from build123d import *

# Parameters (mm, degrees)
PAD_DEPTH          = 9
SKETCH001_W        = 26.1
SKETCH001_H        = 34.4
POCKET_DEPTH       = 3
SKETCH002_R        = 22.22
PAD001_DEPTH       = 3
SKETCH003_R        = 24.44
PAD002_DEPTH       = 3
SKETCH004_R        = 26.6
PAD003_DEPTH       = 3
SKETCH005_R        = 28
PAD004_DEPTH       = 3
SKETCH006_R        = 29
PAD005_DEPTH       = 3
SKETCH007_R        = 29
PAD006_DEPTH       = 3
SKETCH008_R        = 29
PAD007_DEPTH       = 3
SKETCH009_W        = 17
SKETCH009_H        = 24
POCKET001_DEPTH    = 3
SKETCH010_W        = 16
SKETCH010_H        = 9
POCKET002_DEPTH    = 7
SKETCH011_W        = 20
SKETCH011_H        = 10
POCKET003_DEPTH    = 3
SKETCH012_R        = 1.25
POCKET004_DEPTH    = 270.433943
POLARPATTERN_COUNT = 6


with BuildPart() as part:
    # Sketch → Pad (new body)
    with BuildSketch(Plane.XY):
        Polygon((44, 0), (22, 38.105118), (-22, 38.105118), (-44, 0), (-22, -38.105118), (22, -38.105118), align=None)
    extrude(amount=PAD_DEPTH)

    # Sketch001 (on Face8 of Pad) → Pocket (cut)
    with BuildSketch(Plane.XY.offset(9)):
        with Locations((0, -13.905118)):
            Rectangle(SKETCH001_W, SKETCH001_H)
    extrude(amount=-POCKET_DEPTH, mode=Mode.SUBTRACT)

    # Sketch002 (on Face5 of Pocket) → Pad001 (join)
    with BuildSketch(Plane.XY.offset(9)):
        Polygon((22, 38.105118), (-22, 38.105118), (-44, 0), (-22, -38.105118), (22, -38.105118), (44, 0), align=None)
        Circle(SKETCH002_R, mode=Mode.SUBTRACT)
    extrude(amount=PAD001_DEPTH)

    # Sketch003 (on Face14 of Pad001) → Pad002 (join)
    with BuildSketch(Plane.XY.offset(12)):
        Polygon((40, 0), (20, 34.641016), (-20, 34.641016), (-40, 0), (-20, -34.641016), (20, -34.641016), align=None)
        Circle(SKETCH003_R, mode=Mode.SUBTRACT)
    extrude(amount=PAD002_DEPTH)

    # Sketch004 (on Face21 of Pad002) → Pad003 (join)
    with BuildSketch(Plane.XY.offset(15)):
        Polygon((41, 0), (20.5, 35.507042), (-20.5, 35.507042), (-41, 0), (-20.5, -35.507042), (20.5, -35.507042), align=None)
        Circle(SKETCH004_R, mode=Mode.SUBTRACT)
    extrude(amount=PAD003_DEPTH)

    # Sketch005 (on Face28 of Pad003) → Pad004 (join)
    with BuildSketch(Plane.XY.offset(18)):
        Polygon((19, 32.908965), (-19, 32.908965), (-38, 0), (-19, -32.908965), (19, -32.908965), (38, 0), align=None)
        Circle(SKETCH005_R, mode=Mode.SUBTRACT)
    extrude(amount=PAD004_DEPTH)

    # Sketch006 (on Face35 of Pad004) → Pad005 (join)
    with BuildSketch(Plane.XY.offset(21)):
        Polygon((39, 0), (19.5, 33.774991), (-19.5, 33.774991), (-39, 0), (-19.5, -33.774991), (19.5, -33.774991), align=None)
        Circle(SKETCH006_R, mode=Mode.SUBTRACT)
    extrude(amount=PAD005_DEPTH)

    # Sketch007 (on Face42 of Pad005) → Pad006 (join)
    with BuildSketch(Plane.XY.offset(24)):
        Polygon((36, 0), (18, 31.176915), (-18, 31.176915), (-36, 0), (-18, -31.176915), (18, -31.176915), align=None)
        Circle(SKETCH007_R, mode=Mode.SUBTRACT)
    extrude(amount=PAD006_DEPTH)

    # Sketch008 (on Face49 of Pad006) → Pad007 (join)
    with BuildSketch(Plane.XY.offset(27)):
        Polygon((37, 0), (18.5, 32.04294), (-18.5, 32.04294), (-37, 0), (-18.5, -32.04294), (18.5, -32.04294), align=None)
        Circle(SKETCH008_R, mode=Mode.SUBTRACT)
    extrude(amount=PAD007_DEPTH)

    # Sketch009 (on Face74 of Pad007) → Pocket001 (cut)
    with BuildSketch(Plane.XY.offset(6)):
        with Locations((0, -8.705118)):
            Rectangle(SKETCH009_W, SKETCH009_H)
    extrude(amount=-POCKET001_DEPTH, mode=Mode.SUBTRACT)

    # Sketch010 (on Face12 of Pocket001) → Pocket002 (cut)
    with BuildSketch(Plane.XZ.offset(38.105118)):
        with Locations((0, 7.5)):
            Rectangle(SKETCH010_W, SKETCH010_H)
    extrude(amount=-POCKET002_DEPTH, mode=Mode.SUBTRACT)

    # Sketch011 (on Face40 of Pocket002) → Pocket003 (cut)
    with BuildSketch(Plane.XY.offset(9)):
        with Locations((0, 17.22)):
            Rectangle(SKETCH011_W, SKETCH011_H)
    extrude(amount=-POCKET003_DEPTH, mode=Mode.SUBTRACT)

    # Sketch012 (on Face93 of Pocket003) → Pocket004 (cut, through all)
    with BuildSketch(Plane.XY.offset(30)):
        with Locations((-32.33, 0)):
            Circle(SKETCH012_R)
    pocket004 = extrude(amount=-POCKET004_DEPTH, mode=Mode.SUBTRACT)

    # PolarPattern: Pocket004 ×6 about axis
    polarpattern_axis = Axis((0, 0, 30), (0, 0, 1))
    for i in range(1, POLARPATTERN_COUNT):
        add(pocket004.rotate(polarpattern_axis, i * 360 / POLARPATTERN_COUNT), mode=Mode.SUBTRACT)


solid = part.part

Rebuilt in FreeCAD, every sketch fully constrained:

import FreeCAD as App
import Part
import Sketcher

V = App.Vector
Q = App.Units.Quantity

doc = App.newDocument("Part")
body = doc.addObject("PartDesign::Body", "Body")

# Sketch on XY plane
sketch1 = doc.addObject("Sketcher::SketchObject", "Sketch")
body.addObject(sketch1)
sketch1.AttachmentSupport = (doc.XY_Plane, [""])
sketch1.MapMode = "FlatFace"
sketch1.addGeometry([
    Part.LineSegment(V(44, 0, 0), V(22, 38, 0)),  # 0
    Part.LineSegment(V(22, 38, 0), V(-22, 38, 0)),  # 1
    Part.LineSegment(V(-22, 38, 0), V(-44, 0, 0)),  # 2
    Part.LineSegment(V(-44, 0, 0), V(-22, -38, 0)),  # 3
    Part.LineSegment(V(-22, -38, 0), V(22, -38, 0)),  # 4
    Part.LineSegment(V(22, -38, 0), V(44, 0, 0)),  # 5
], False)
sketch1.addConstraint([
    Sketcher.Constraint("Coincident", 0, 2, 1, 1),
    Sketcher.Constraint("Coincident", 1, 2, 2, 1),
    Sketcher.Constraint("Coincident", 2, 2, 3, 1),
    Sketcher.Constraint("Coincident", 3, 2, 4, 1),
    Sketcher.Constraint("Coincident", 4, 2, 5, 1),
    Sketcher.Constraint("Coincident", 5, 2, 0, 1),
    Sketcher.Constraint("Horizontal", 1),
    Sketcher.Constraint("Horizontal", 4),
    Sketcher.Constraint("Symmetric", 0, 2, 3, 2, -1, 1),
    Sketcher.Constraint("Symmetric", 2, 2, 5, 2, -1, 1),
    Sketcher.Constraint("PointOnObject", 2, 2, -1),
    Sketcher.Constraint("Parallel", 2, 5),
    Sketcher.Constraint("Vertical", 1, 2, 3, 2),
    Sketcher.Constraint("DistanceX", 1, 2, 1, 1, Q("44 mm")),
    Sketcher.Constraint("Angle", 0, Q("120 deg")),
    Sketcher.Constraint("Distance", 0, Q("44 mm")),
])
pad1 = doc.addObject("PartDesign::Pad", "Pad")
body.addObject(pad1)
pad1.Profile = sketch1
pad1.Length = 9

# Sketch on XY plane
sketch2 = doc.addObject("Sketcher::SketchObject", "Sketch001")
body.addObject(sketch2)
sketch2.AttachmentSupport = (doc.XY_Plane, [""])
sketch2.MapMode = "FlatFace"
sketch2.AttachmentOffset = App.Placement(V(0, 0, 9), App.Rotation())
sketch2.addGeometry([
    Part.LineSegment(V(-13, 3, 0), V(-13, -31, 0)),
    Part.LineSegment(V(-13, -31, 0), V(13, -31, 0)),
    Part.LineSegment(V(13, -31, 0), V(13, 3, 0)),
    Part.LineSegment(V(13, 3, 0), V(-13, 3, 0)),
], False)
sketch2.addConstraint([
    Sketcher.Constraint("Coincident", 0, 2, 1, 1),
    Sketcher.Constraint("Coincident", 1, 2, 2, 1),
    Sketcher.Constraint("Coincident", 2, 2, 3, 1),
    Sketcher.Constraint("Coincident", 3, 2, 0, 1),
    Sketcher.Constraint("Vertical", 0),
    Sketcher.Constraint("Horizontal", 1),
    Sketcher.Constraint("Vertical", 2),
    Sketcher.Constraint("Horizontal", 3),
    Sketcher.Constraint("DistanceX", 1, 1, 1, 2, Q("26.1 mm")),
    Sketcher.Constraint("DistanceY", 0, 2, 0, 1, Q("34.4 mm")),
    Sketcher.Constraint("DistanceX", 0, 2, -1, 1, Q("13.05 mm")),
    Sketcher.Constraint("DistanceY", 0, 2, -1, 1, Q("31.105118 mm")),
])
pocket1 = doc.addObject("PartDesign::Pocket", "Pocket")
body.addObject(pocket1)
pocket1.Profile = sketch2
pocket1.Length = 3

# Sketch on XY plane
sketch3 = doc.addObject("Sketcher::SketchObject", "Sketch002")
body.addObject(sketch3)
sketch3.AttachmentSupport = (doc.XY_Plane, [""])
sketch3.MapMode = "FlatFace"
sketch3.AttachmentOffset = App.Placement(V(0, 0, 9), App.Rotation())
sketch3.addGeometry([
    Part.LineSegment(V(22, 38, 0), V(-22, 38, 0)),  # 0
    Part.LineSegment(V(-22, 38, 0), V(-44, 0, 0)),  # 1
    Part.LineSegment(V(-44, 0, 0), V(-22, -38, 0)),  # 2
    Part.LineSegment(V(-22, -38, 0), V(22, -38, 0)),  # 3
    Part.LineSegment(V(22, -38, 0), V(44, 0, 0)),  # 4
    Part.LineSegment(V(44, 0, 0), V(22, 38, 0)),  # 5
    Part.Circle(V(0, 0, 0), V(0, 0, 1), 22),  # 6
], False)
sketch3.addConstraint([
    Sketcher.Constraint("Coincident", 0, 2, 1, 1),
    Sketcher.Constraint("Coincident", 1, 2, 2, 1),
    Sketcher.Constraint("Coincident", 2, 2, 3, 1),
    Sketcher.Constraint("Coincident", 3, 2, 4, 1),
    Sketcher.Constraint("Coincident", 4, 2, 5, 1),
    Sketcher.Constraint("Coincident", 5, 2, 0, 1),
    Sketcher.Constraint("Horizontal", 0),
    Sketcher.Constraint("Horizontal", 3),
    Sketcher.Constraint("Coincident", 6, 3, -1, 1),
    Sketcher.Constraint("Symmetric", 0, 2, 3, 2, -1, 1),
    Sketcher.Constraint("Symmetric", 1, 2, 4, 2, -1, 1),
    Sketcher.Constraint("PointOnObject", 1, 2, -1),
    Sketcher.Constraint("Parallel", 2, 5),
    Sketcher.Constraint("Vertical", 0, 2, 2, 2),
    Sketcher.Constraint("Diameter", 6, Q("44.44 mm")),
    Sketcher.Constraint("DistanceX", 0, 2, 0, 1, Q("44 mm")),
    Sketcher.Constraint("Angle", 1, Q("-120 deg")),
    Sketcher.Constraint("Distance", 1, Q("44 mm")),
])
pad2 = doc.addObject("PartDesign::Pad", "Pad001")
body.addObject(pad2)
pad2.Profile = sketch3
pad2.Length = 3

# Sketch on XY plane
sketch4 = doc.addObject("Sketcher::SketchObject", "Sketch003")
body.addObject(sketch4)
sketch4.AttachmentSupport = (doc.XY_Plane, [""])
sketch4.MapMode = "FlatFace"
sketch4.AttachmentOffset = App.Placement(V(0, 0, 12), App.Rotation())
sketch4.addGeometry([
    Part.LineSegment(V(40, 0, 0), V(20, 35, 0)),  # 0
    Part.LineSegment(V(20, 35, 0), V(-20, 35, 0)),  # 1
    Part.LineSegment(V(-20, 35, 0), V(-40, 0, 0)),  # 2
    Part.LineSegment(V(-40, 0, 0), V(-20, -35, 0)),  # 3
    Part.LineSegment(V(-20, -35, 0), V(20, -35, 0)),  # 4
    Part.LineSegment(V(20, -35, 0), V(40, 0, 0)),  # 5
    Part.Circle(V(0, 0, 0), V(0, 0, 1), 24),  # 6
], False)
sketch4.addConstraint([
    Sketcher.Constraint("Coincident", 0, 2, 1, 1),
    Sketcher.Constraint("Coincident", 1, 2, 2, 1),
    Sketcher.Constraint("Coincident", 2, 2, 3, 1),
    Sketcher.Constraint("Coincident", 3, 2, 4, 1),
    Sketcher.Constraint("Coincident", 4, 2, 5, 1),
    Sketcher.Constraint("Coincident", 5, 2, 0, 1),
    Sketcher.Constraint("Horizontal", 1),
    Sketcher.Constraint("Horizontal", 4),
    Sketcher.Constraint("Coincident", 6, 3, -1, 1),
    Sketcher.Constraint("Symmetric", 0, 2, 3, 2, -1, 1),
    Sketcher.Constraint("Symmetric", 2, 2, 5, 2, -1, 1),
    Sketcher.Constraint("PointOnObject", 2, 2, -1),
    Sketcher.Constraint("Parallel", 2, 5),
    Sketcher.Constraint("Vertical", 1, 2, 3, 2),
    Sketcher.Constraint("Diameter", 6, Q("48.88 mm")),
    Sketcher.Constraint("DistanceX", 1, 2, 1, 1, Q("40 mm")),
    Sketcher.Constraint("Angle", 0, Q("120 deg")),
    Sketcher.Constraint("Distance", 0, Q("40 mm")),
])
pad3 = doc.addObject("PartDesign::Pad", "Pad002")
body.addObject(pad3)
pad3.Profile = sketch4
pad3.Length = 3

# Sketch on XY plane
sketch5 = doc.addObject("Sketcher::SketchObject", "Sketch004")
body.addObject(sketch5)
sketch5.AttachmentSupport = (doc.XY_Plane, [""])
sketch5.MapMode = "FlatFace"
sketch5.AttachmentOffset = App.Placement(V(0, 0, 15), App.Rotation())
sketch5.addGeometry([
    Part.LineSegment(V(41, 0, 0), V(20, 36, 0)),  # 0
    Part.LineSegment(V(20, 36, 0), V(-20, 36, 0)),  # 1
    Part.LineSegment(V(-20, 36, 0), V(-41, 0, 0)),  # 2
    Part.LineSegment(V(-41, 0, 0), V(-20, -36, 0)),  # 3
    Part.LineSegment(V(-20, -36, 0), V(20, -36, 0)),  # 4
    Part.LineSegment(V(20, -36, 0), V(41, 0, 0)),  # 5
    Part.Circle(V(0, 0, 0), V(0, 0, 1), 27),  # 6
], False)
sketch5.addConstraint([
    Sketcher.Constraint("Coincident", 0, 2, 1, 1),
    Sketcher.Constraint("Coincident", 1, 2, 2, 1),
    Sketcher.Constraint("Coincident", 2, 2, 3, 1),
    Sketcher.Constraint("Coincident", 3, 2, 4, 1),
    Sketcher.Constraint("Coincident", 4, 2, 5, 1),
    Sketcher.Constraint("Coincident", 5, 2, 0, 1),
    Sketcher.Constraint("Horizontal", 1),
    Sketcher.Constraint("Horizontal", 4),
    Sketcher.Constraint("Coincident", 6, 3, -1, 1),
    Sketcher.Constraint("Symmetric", 0, 2, 3, 2, -1, 1),
    Sketcher.Constraint("Symmetric", 2, 2, 5, 2, -1, 1),
    Sketcher.Constraint("PointOnObject", 2, 2, -1),
    Sketcher.Constraint("Parallel", 2, 5),
    Sketcher.Constraint("Vertical", 1, 2, 3, 2),
    Sketcher.Constraint("Diameter", 6, Q("53.2 mm")),
    Sketcher.Constraint("DistanceX", 1, 2, 1, 1, Q("41 mm")),
    Sketcher.Constraint("Angle", 0, Q("120 deg")),
    Sketcher.Constraint("Distance", 0, Q("41 mm")),
])
pad4 = doc.addObject("PartDesign::Pad", "Pad003")
body.addObject(pad4)
pad4.Profile = sketch5
pad4.Length = 3

# Sketch on XY plane
sketch6 = doc.addObject("Sketcher::SketchObject", "Sketch005")
body.addObject(sketch6)
sketch6.AttachmentSupport = (doc.XY_Plane, [""])
sketch6.MapMode = "FlatFace"
sketch6.AttachmentOffset = App.Placement(V(0, 0, 18), App.Rotation())
sketch6.addGeometry([
    Part.LineSegment(V(19, 33, 0), V(-19, 33, 0)),  # 0
    Part.LineSegment(V(-19, 33, 0), V(-38, 0, 0)),  # 1
    Part.LineSegment(V(-38, 0, 0), V(-19, -33, 0)),  # 2
    Part.LineSegment(V(-19, -33, 0), V(19, -33, 0)),  # 3
    Part.LineSegment(V(19, -33, 0), V(38, 0, 0)),  # 4
    Part.LineSegment(V(38, 0, 0), V(19, 33, 0)),  # 5
    Part.Circle(V(0, 0, 0), V(0, 0, 1), 28),  # 6
], False)
sketch6.addConstraint([
    Sketcher.Constraint("Coincident", 0, 2, 1, 1),
    Sketcher.Constraint("Coincident", 1, 2, 2, 1),
    Sketcher.Constraint("Coincident", 2, 2, 3, 1),
    Sketcher.Constraint("Coincident", 3, 2, 4, 1),
    Sketcher.Constraint("Coincident", 4, 2, 5, 1),
    Sketcher.Constraint("Coincident", 5, 2, 0, 1),
    Sketcher.Constraint("Horizontal", 0),
    Sketcher.Constraint("Horizontal", 3),
    Sketcher.Constraint("Coincident", 6, 3, -1, 1),
    Sketcher.Constraint("Symmetric", 0, 2, 3, 2, -1, 1),
    Sketcher.Constraint("Symmetric", 1, 2, 4, 2, -1, 1),
    Sketcher.Constraint("PointOnObject", 1, 2, -1),
    Sketcher.Constraint("Parallel", 2, 5),
    Sketcher.Constraint("Vertical", 0, 2, 2, 2),
    Sketcher.Constraint("Diameter", 6, Q("56 mm")),
    Sketcher.Constraint("DistanceX", 0, 2, 0, 1, Q("38 mm")),
    Sketcher.Constraint("Angle", 1, Q("-120 deg")),
    Sketcher.Constraint("Distance", 1, Q("38 mm")),
])
pad5 = doc.addObject("PartDesign::Pad", "Pad004")
body.addObject(pad5)
pad5.Profile = sketch6
pad5.Length = 3

# Sketch on XY plane
sketch7 = doc.addObject("Sketcher::SketchObject", "Sketch006")
body.addObject(sketch7)
sketch7.AttachmentSupport = (doc.XY_Plane, [""])
sketch7.MapMode = "FlatFace"
sketch7.AttachmentOffset = App.Placement(V(0, 0, 21), App.Rotation())
sketch7.addGeometry([
    Part.LineSegment(V(39, 0, 0), V(20, 34, 0)),  # 0
    Part.LineSegment(V(20, 34, 0), V(-20, 34, 0)),  # 1
    Part.LineSegment(V(-20, 34, 0), V(-39, 0, 0)),  # 2
    Part.LineSegment(V(-39, 0, 0), V(-20, -34, 0)),  # 3
    Part.LineSegment(V(-20, -34, 0), V(20, -34, 0)),  # 4
    Part.LineSegment(V(20, -34, 0), V(39, 0, 0)),  # 5
    Part.Circle(V(0, 0, 0), V(0, 0, 1), 29),  # 6
], False)
sketch7.addConstraint([
    Sketcher.Constraint("Coincident", 0, 2, 1, 1),
    Sketcher.Constraint("Coincident", 1, 2, 2, 1),
    Sketcher.Constraint("Coincident", 2, 2, 3, 1),
    Sketcher.Constraint("Coincident", 3, 2, 4, 1),
    Sketcher.Constraint("Coincident", 4, 2, 5, 1),
    Sketcher.Constraint("Coincident", 5, 2, 0, 1),
    Sketcher.Constraint("Horizontal", 1),
    Sketcher.Constraint("Horizontal", 4),
    Sketcher.Constraint("Coincident", 6, 3, -1, 1),
    Sketcher.Constraint("Symmetric", 0, 2, 3, 2, -1, 1),
    Sketcher.Constraint("Symmetric", 2, 2, 5, 2, -1, 1),
    Sketcher.Constraint("PointOnObject", 2, 2, -1),
    Sketcher.Constraint("Parallel", 2, 5),
    Sketcher.Constraint("Vertical", 1, 2, 3, 2),
    Sketcher.Constraint("Diameter", 6, Q("58 mm")),
    Sketcher.Constraint("DistanceX", 1, 2, 1, 1, Q("39 mm")),
    Sketcher.Constraint("Angle", 0, Q("120 deg")),
    Sketcher.Constraint("Distance", 0, Q("39 mm")),
])
pad6 = doc.addObject("PartDesign::Pad", "Pad005")
body.addObject(pad6)
pad6.Profile = sketch7
pad6.Length = 3

# Sketch on XY plane
sketch8 = doc.addObject("Sketcher::SketchObject", "Sketch007")
body.addObject(sketch8)
sketch8.AttachmentSupport = (doc.XY_Plane, [""])
sketch8.MapMode = "FlatFace"
sketch8.AttachmentOffset = App.Placement(V(0, 0, 24), App.Rotation())
sketch8.addGeometry([
    Part.LineSegment(V(36, 0, 0), V(18, 31, 0)),  # 0
    Part.LineSegment(V(18, 31, 0), V(-18, 31, 0)),  # 1
    Part.LineSegment(V(-18, 31, 0), V(-36, 0, 0)),  # 2
    Part.LineSegment(V(-36, 0, 0), V(-18, -31, 0)),  # 3
    Part.LineSegment(V(-18, -31, 0), V(18, -31, 0)),  # 4
    Part.LineSegment(V(18, -31, 0), V(36, 0, 0)),  # 5
    Part.Circle(V(0, 0, 0), V(0, 0, 1), 29),  # 6
], False)
sketch8.addConstraint([
    Sketcher.Constraint("Coincident", 0, 2, 1, 1),
    Sketcher.Constraint("Coincident", 1, 2, 2, 1),
    Sketcher.Constraint("Coincident", 2, 2, 3, 1),
    Sketcher.Constraint("Coincident", 3, 2, 4, 1),
    Sketcher.Constraint("Coincident", 4, 2, 5, 1),
    Sketcher.Constraint("Coincident", 5, 2, 0, 1),
    Sketcher.Constraint("Horizontal", 1),
    Sketcher.Constraint("Horizontal", 4),
    Sketcher.Constraint("Coincident", 6, 3, -1, 1),
    Sketcher.Constraint("Symmetric", 0, 2, 3, 2, -1, 1),
    Sketcher.Constraint("Symmetric", 2, 2, 5, 2, -1, 1),
    Sketcher.Constraint("PointOnObject", 2, 2, -1),
    Sketcher.Constraint("Parallel", 2, 5),
    Sketcher.Constraint("Vertical", 1, 2, 3, 2),
    Sketcher.Constraint("Diameter", 6, Q("58 mm")),
    Sketcher.Constraint("DistanceX", 1, 2, 1, 1, Q("36 mm")),
    Sketcher.Constraint("Angle", 0, Q("120 deg")),
    Sketcher.Constraint("Distance", 0, Q("36 mm")),
])
pad7 = doc.addObject("PartDesign::Pad", "Pad006")
body.addObject(pad7)
pad7.Profile = sketch8
pad7.Length = 3

# Sketch on XY plane
sketch9 = doc.addObject("Sketcher::SketchObject", "Sketch008")
body.addObject(sketch9)
sketch9.AttachmentSupport = (doc.XY_Plane, [""])
sketch9.MapMode = "FlatFace"
sketch9.AttachmentOffset = App.Placement(V(0, 0, 27), App.Rotation())
sketch9.addGeometry([
    Part.LineSegment(V(37, 0, 0), V(18, 32, 0)),  # 0
    Part.LineSegment(V(18, 32, 0), V(-18, 32, 0)),  # 1
    Part.LineSegment(V(-18, 32, 0), V(-37, 0, 0)),  # 2
    Part.LineSegment(V(-37, 0, 0), V(-18, -32, 0)),  # 3
    Part.LineSegment(V(-18, -32, 0), V(18, -32, 0)),  # 4
    Part.LineSegment(V(18, -32, 0), V(37, 0, 0)),  # 5
    Part.Circle(V(0, 0, 0), V(0, 0, 1), 29),  # 6
], False)
sketch9.addConstraint([
    Sketcher.Constraint("Coincident", 0, 2, 1, 1),
    Sketcher.Constraint("Coincident", 1, 2, 2, 1),
    Sketcher.Constraint("Coincident", 2, 2, 3, 1),
    Sketcher.Constraint("Coincident", 3, 2, 4, 1),
    Sketcher.Constraint("Coincident", 4, 2, 5, 1),
    Sketcher.Constraint("Coincident", 5, 2, 0, 1),
    Sketcher.Constraint("Horizontal", 1),
    Sketcher.Constraint("Horizontal", 4),
    Sketcher.Constraint("Coincident", 6, 3, -1, 1),
    Sketcher.Constraint("Symmetric", 0, 2, 3, 2, -1, 1),
    Sketcher.Constraint("Symmetric", 2, 2, 5, 2, -1, 1),
    Sketcher.Constraint("PointOnObject", 2, 2, -1),
    Sketcher.Constraint("Parallel", 2, 5),
    Sketcher.Constraint("Vertical", 1, 2, 3, 2),
    Sketcher.Constraint("Diameter", 6, Q("58 mm")),
    Sketcher.Constraint("DistanceX", 1, 2, 1, 1, Q("37 mm")),
    Sketcher.Constraint("Angle", 0, Q("120 deg")),
    Sketcher.Constraint("Distance", 0, Q("37 mm")),
])
pad8 = doc.addObject("PartDesign::Pad", "Pad007")
body.addObject(pad8)
pad8.Profile = sketch9
pad8.Length = 3

# Sketch on XY plane
sketch10 = doc.addObject("Sketcher::SketchObject", "Sketch009")
body.addObject(sketch10)
sketch10.AttachmentSupport = (doc.XY_Plane, [""])
sketch10.MapMode = "FlatFace"
sketch10.AttachmentOffset = App.Placement(V(0, 0, 6), App.Rotation())
sketch10.addGeometry([
    Part.LineSegment(V(-8, 3, 0), V(-8, -21, 0)),
    Part.LineSegment(V(-8, -21, 0), V(8, -21, 0)),
    Part.LineSegment(V(8, -21, 0), V(8, 3, 0)),
    Part.LineSegment(V(8, 3, 0), V(-8, 3, 0)),
], False)
sketch10.addConstraint([
    Sketcher.Constraint("Coincident", 0, 2, 1, 1),
    Sketcher.Constraint("Coincident", 1, 2, 2, 1),
    Sketcher.Constraint("Coincident", 2, 2, 3, 1),
    Sketcher.Constraint("Coincident", 3, 2, 0, 1),
    Sketcher.Constraint("Vertical", 0),
    Sketcher.Constraint("Horizontal", 1),
    Sketcher.Constraint("Vertical", 2),
    Sketcher.Constraint("Horizontal", 3),
    Sketcher.Constraint("DistanceX", 1, 1, 1, 2, Q("17 mm")),
    Sketcher.Constraint("DistanceY", 0, 2, 0, 1, Q("24 mm")),
    Sketcher.Constraint("DistanceX", 0, 2, -1, 1, Q("8.5 mm")),
    Sketcher.Constraint("DistanceY", -1, 1, 2, 2, Q("3.294882 mm")),
])
pocket2 = doc.addObject("PartDesign::Pocket", "Pocket001")
body.addObject(pocket2)
pocket2.Profile = sketch10
pocket2.Length = 3

# Sketch on XZ plane
sketch11 = doc.addObject("Sketcher::SketchObject", "Sketch010")
body.addObject(sketch11)
sketch11.AttachmentSupport = (doc.XZ_Plane, [""])
sketch11.MapMode = "FlatFace"
sketch11.AttachmentOffset = App.Placement(V(0, 0, 38.105118), App.Rotation())
sketch11.addGeometry([
    Part.LineSegment(V(-8, 12, 0), V(-8, 3, 0)),
    Part.LineSegment(V(-8, 3, 0), V(8, 3, 0)),
    Part.LineSegment(V(8, 3, 0), V(8, 12, 0)),
    Part.LineSegment(V(8, 12, 0), V(-8, 12, 0)),
], False)
sketch11.addConstraint([
    Sketcher.Constraint("Coincident", 0, 2, 1, 1),
    Sketcher.Constraint("Coincident", 1, 2, 2, 1),
    Sketcher.Constraint("Coincident", 2, 2, 3, 1),
    Sketcher.Constraint("Coincident", 3, 2, 0, 1),
    Sketcher.Constraint("Vertical", 0),
    Sketcher.Constraint("Horizontal", 1),
    Sketcher.Constraint("Vertical", 2),
    Sketcher.Constraint("Horizontal", 3),
    Sketcher.Constraint("DistanceX", 1, 1, 1, 2, Q("16 mm")),
    Sketcher.Constraint("DistanceY", 0, 2, 0, 1, Q("9 mm")),
    Sketcher.Constraint("DistanceX", 0, 2, -1, 1, Q("8 mm")),
    Sketcher.Constraint("DistanceY", -1, 1, 0, 2, Q("3 mm")),
])
pocket3 = doc.addObject("PartDesign::Pocket", "Pocket002")
body.addObject(pocket3)
pocket3.Profile = sketch11
pocket3.Length = 7

# Sketch on XY plane
sketch12 = doc.addObject("Sketcher::SketchObject", "Sketch011")
body.addObject(sketch12)
sketch12.AttachmentSupport = (doc.XY_Plane, [""])
sketch12.MapMode = "FlatFace"
sketch12.AttachmentOffset = App.Placement(V(0, 0, 9), App.Rotation())
sketch12.addGeometry([
    Part.LineSegment(V(-10, 22, 0), V(-10, 12, 0)),
    Part.LineSegment(V(-10, 12, 0), V(10, 12, 0)),
    Part.LineSegment(V(10, 12, 0), V(10, 22, 0)),
    Part.LineSegment(V(10, 22, 0), V(-10, 22, 0)),
], False)
sketch12.addConstraint([
    Sketcher.Constraint("Coincident", 0, 2, 1, 1),
    Sketcher.Constraint("Coincident", 1, 2, 2, 1),
    Sketcher.Constraint("Coincident", 2, 2, 3, 1),
    Sketcher.Constraint("Coincident", 3, 2, 0, 1),
    Sketcher.Constraint("Vertical", 0),
    Sketcher.Constraint("Horizontal", 1),
    Sketcher.Constraint("Vertical", 2),
    Sketcher.Constraint("Horizontal", 3),
    Sketcher.Constraint("DistanceX", 1, 1, 1, 2, Q("20 mm")),
    Sketcher.Constraint("DistanceY", 0, 2, 0, 1, Q("10 mm")),
    Sketcher.Constraint("DistanceX", 0, 2, -1, 1, Q("10 mm")),
    Sketcher.Constraint("DistanceY", -1, 1, 0, 2, Q("12.22 mm")),
])
pocket4 = doc.addObject("PartDesign::Pocket", "Pocket003")
body.addObject(pocket4)
pocket4.Profile = sketch12
pocket4.Length = 3

# Sketch on XY plane
sketch13 = doc.addObject("Sketcher::SketchObject", "Sketch012")
body.addObject(sketch13)
sketch13.AttachmentSupport = (doc.XY_Plane, [""])
sketch13.MapMode = "FlatFace"
sketch13.AttachmentOffset = App.Placement(V(0, 0, 30), App.Rotation())
sketch13.addGeometry(Part.Circle(V(-32.3, 0, 0), V(0, 0, 1), 1.2), False)
sketch13.addConstraint([
    Sketcher.Constraint("PointOnObject", 0, 3, -1),
    Sketcher.Constraint("Diameter", 0, Q("2.5 mm")),
    Sketcher.Constraint("DistanceX", 0, 3, -1, 1, Q("32.33 mm")),
])
pocket5 = doc.addObject("PartDesign::Pocket", "Pocket004")
body.addObject(pocket5)
pocket5.Profile = sketch13
pocket5.Type = "ThroughAll"
doc.recompute()

polarpattern = doc.addObject("PartDesign::PolarPattern", "PolarPattern")
body.addObject(polarpattern)
polarpattern.Originals = [pocket5]
polarpattern.Axis = (doc.Z_Axis, [""])
polarpattern.Angle = 360
polarpattern.Occurrences = 6
body.Tip = polarpattern

doc.recompute()
